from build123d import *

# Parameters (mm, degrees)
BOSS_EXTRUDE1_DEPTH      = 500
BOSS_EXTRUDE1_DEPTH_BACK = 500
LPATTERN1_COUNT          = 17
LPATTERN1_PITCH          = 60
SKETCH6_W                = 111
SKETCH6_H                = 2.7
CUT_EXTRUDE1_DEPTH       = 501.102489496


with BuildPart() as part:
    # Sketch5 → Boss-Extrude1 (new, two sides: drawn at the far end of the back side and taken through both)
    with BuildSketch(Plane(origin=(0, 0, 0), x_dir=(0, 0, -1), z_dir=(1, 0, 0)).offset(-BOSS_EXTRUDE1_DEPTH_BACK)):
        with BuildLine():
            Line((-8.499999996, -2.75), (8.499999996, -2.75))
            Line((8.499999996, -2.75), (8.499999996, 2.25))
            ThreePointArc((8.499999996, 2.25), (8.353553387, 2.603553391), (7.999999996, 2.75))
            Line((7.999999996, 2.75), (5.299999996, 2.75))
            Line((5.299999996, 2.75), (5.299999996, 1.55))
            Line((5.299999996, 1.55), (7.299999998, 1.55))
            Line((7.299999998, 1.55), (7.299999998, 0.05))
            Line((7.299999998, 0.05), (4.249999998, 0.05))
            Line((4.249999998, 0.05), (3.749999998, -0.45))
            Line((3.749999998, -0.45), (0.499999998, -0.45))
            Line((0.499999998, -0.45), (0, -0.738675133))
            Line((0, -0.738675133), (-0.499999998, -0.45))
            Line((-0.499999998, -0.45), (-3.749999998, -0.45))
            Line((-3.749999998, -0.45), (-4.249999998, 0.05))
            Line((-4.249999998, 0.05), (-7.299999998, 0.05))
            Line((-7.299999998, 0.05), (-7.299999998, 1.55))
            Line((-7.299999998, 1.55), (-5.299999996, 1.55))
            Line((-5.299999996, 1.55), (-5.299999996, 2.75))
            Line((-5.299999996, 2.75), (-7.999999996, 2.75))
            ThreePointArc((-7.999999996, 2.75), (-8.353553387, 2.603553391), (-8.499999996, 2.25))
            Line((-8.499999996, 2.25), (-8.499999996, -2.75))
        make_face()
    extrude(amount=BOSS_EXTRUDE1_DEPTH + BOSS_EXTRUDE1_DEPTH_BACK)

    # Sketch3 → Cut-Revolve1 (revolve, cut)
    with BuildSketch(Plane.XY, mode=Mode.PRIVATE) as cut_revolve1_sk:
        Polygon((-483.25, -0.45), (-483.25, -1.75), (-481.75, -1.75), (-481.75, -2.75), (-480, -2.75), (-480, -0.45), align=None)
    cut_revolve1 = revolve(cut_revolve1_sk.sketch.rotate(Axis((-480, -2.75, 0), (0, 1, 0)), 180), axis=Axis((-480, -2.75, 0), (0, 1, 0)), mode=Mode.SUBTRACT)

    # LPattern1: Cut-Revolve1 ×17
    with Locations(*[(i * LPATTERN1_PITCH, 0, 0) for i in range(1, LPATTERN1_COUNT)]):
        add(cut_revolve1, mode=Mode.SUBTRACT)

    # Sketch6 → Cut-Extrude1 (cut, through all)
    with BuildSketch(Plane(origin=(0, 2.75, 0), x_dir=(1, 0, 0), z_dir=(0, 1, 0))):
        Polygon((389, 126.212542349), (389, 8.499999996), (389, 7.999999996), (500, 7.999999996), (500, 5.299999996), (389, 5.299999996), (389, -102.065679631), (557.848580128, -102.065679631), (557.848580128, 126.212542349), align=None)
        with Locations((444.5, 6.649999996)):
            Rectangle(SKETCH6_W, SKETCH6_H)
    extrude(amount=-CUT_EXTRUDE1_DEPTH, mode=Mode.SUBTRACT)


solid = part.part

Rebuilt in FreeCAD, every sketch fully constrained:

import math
import FreeCAD as App
import Part
import Sketcher
Q = App.Units.Quantity


def add_polygon(sketch, points):
    """Adds a closed chain of lines whose ends are joined by coincident constraints."""
    first, n = sketch.GeometryCount, len(points)
    for a, b in zip(points, points[1:] + points[:1]):
        sketch.addGeometry(Part.LineSegment(App.Vector(*a, 0), App.Vector(*b, 0)), False)
    for i in range(n):
        sketch.addConstraint(Sketcher.Constraint("Coincident", first + i, 2, first + (i + 1) % n, 1))

doc = App.newDocument("Part")
body = doc.addObject("PartDesign::Body", "Body")

# Sketch on YZ plane
sketch1 = body.newObject("Sketcher::SketchObject", "Sketch")
sketch1.AttachmentSupport = (doc.getObject("YZ_Plane"), [""])
sketch1.MapMode = "FlatFace"
sketch1.addGeometry([
    Part.LineSegment(App.Vector(-2.75, 8.5, 0), App.Vector(-2.75, -8.5, 0)),  # 0
    Part.LineSegment(App.Vector(-2.75, -8.5, 0), App.Vector(2.25, -8.5, 0)),  # 1
    Part.ArcOfCircle(Part.Circle(App.Vector(2.25, -8, 0), App.Vector(0, 0, 1), 0.5), math.radians(-90), math.radians(0)),  # 2
    Part.LineSegment(App.Vector(2.75, -8, 0), App.Vector(2.75, -5.3, 0)),  # 3
    Part.LineSegment(App.Vector(2.75, -5.3, 0), App.Vector(1.55, -5.3, 0)),  # 4
    Part.LineSegment(App.Vector(1.55, -5.3, 0), App.Vector(1.55, -7.3, 0)),  # 5
    Part.LineSegment(App.Vector(1.55, -7.3, 0), App.Vector(0.05, -7.3, 0)),  # 6
    Part.LineSegment(App.Vector(0.05, -7.3, 0), App.Vector(0.05, -4.25, 0)),  # 7
    Part.LineSegment(App.Vector(0.05, -4.25, 0), App.Vector(-0.45, -3.75, 0)),  # 8
    Part.LineSegment(App.Vector(-0.45, -3.75, 0), App.Vector(-0.45, -0.5, 0)),  # 9
    Part.LineSegment(App.Vector(-0.45, -0.5, 0), App.Vector(-0.74, 0, 0)),  # 10
    Part.LineSegment(App.Vector(-0.74, 0, 0), App.Vector(-0.45, 0.5, 0)),  # 11
    Part.LineSegment(App.Vector(-0.45, 0.5, 0), App.Vector(-0.45, 3.75, 0)),  # 12
    Part.LineSegment(App.Vector(-0.45, 3.75, 0), App.Vector(0.05, 4.25, 0)),  # 13
    Part.LineSegment(App.Vector(0.05, 4.25, 0), App.Vector(0.05, 7.3, 0)),  # 14
    Part.LineSegment(App.Vector(0.05, 7.3, 0), App.Vector(1.55, 7.3, 0)),  # 15
    Part.LineSegment(App.Vector(1.55, 7.3, 0), App.Vector(1.55, 5.3, 0)),  # 16
    Part.LineSegment(App.Vector(1.55, 5.3, 0), App.Vector(2.75, 5.3, 0)),  # 17
    Part.LineSegment(App.Vector(2.75, 5.3, 0), App.Vector(2.75, 8, 0)),  # 18
    Part.ArcOfCircle(Part.Circle(App.Vector(2.25, 8, 0), App.Vector(0, 0, 1), 0.5), math.radians(0), math.radians(90)),  # 19
    Part.LineSegment(App.Vector(2.25, 8.5, 0), App.Vector(-2.75, 8.5, 0)),  # 20
], False)
sketch1.addConstraint([
    Sketcher.Constraint("Coincident", 0, 2, 1, 1),
    Sketcher.Constraint("Tangent", 1, 2, 2, 1),
    Sketcher.Constraint("Tangent", 2, 2, 3, 1),
    Sketcher.Constraint("Coincident", 3, 2, 4, 1),
    Sketcher.Constraint("Coincident", 4, 2, 5, 1),
    Sketcher.Constraint("Coincident", 5, 2, 6, 1),
    Sketcher.Constraint("Coincident", 6, 2, 7, 1),
    Sketcher.Constraint("Coincident", 7, 2, 8, 1),
    Sketcher.Constraint("Coincident", 8, 2, 9, 1),
    Sketcher.Constraint("Coincident", 9, 2, 10, 1),
    Sketcher.Constraint("Coincident", 10, 2, 11, 1),
    Sketcher.Constraint("Coincident", 11, 2, 12, 1),
    Sketcher.Constraint("Coincident", 12, 2, 13, 1),
    Sketcher.Constraint("Coincident", 13, 2, 14, 1),
    Sketcher.Constraint("Coincident", 14, 2, 15, 1),
    Sketcher.Constraint("Coincident", 15, 2, 16, 1),
    Sketcher.Constraint("Coincident", 16, 2, 17, 1),
    Sketcher.Constraint("Coincident", 17, 2, 18, 1),
    Sketcher.Constraint("Tangent", 18, 2, 19, 1),
    Sketcher.Constraint("Tangent", 19, 2, 20, 1),
    Sketcher.Constraint("Coincident", 20, 2, 0, 1),
    Sketcher.Constraint("Vertical", 0),
    Sketcher.Constraint("Horizontal", 1),
    Sketcher.Constraint("Vertical", 3),
    Sketcher.Constraint("Horizontal", 4),
    Sketcher.Constraint("Vertical", 5),
    Sketcher.Constraint("Horizontal", 6),
    Sketcher.Constraint("Vertical", 7),
    Sketcher.Constraint("Vertical", 9),
    Sketcher.Constraint("Vertical", 12),
    Sketcher.Constraint("Vertical", 14),
    Sketcher.Constraint("Horizontal", 15),
    Sketcher.Constraint("Vertical", 16),
    Sketcher.Constraint("Horizontal", 17),
    Sketcher.Constraint("Vertical", 18),
    Sketcher.Constraint("Horizontal", 20),
    Sketcher.Constraint("Equal", 2, 19),
    Sketcher.Constraint("Symmetric", 2, 3, 19, 3, -1),
    Sketcher.Constraint("Symmetric", 9, 2, 11, 2, -1),
    Sketcher.Constraint("Symmetric", 7, 2, 13, 2, -1),
    Sketcher.Constraint("Symmetric", 5, 2, 15, 2, -1),
    Sketcher.Constraint("PointOnObject", 10, 2, -1),
    Sketcher.Constraint("Perpendicular", 8, 13),
    Sketcher.Constraint("Equal", 9, 12),
    Sketcher.Constraint("Equal", 5, 16),
    Sketcher.Constraint("Radius", 2, Q("0.5 mm")),
    Sketcher.Constraint("DistanceX", 1, 1, 1, 2, Q("5 mm")),
    Sketcher.Constraint("DistanceY", 0, 2, 0, 1, Q("17 mm")),
    Sketcher.Constraint("DistanceY", 5, 2, 5, 1, Q("2 mm")),
    Sketcher.Constraint("Angle", 10, Q("120 deg")),
    Sketcher.Constraint("DistanceX", 4, 2, 4, 1, Q("1.2 mm")),
    Sketcher.Constraint("DistanceX", 6, 2, 6, 1, Q("1.5 mm")),
    Sketcher.Constraint("DistanceY", 3, 1, 3, 2, Q("2.7 mm")),
    Sketcher.Constraint("DistanceX", 8, 2, 4, 2, Q("2 mm")),
    Sketcher.Constraint("DistanceY", 9, 2, 11, 2, Q("1 mm")),
    Sketcher.Constraint("DistanceY", 7, 1, 7, 2, Q("3.05 mm")),
    Sketcher.Constraint("DistanceX", -1, 1, 2, 3, Q("2.25 mm")),
])
pad1 = body.newObject("PartDesign::Pad", "Pad")
pad1.Profile = sketch1
pad1.Type = "TwoLengths"
pad1.Length = 500
pad1.Length2 = 500

# Sketch on XY plane
sketch2 = body.newObject("Sketcher::SketchObject", "Sketch001")
sketch2.AttachmentSupport = (doc.getObject("XY_Plane"), [""])
sketch2.MapMode = "FlatFace"
add_polygon(sketch2, [(-483.2, -0.5), (-483.2, -1.8), (-481.8, -1.8), (-481.8, -2.8), (-480, -2.8), (-480, -0.5)])  # lines 0-5
sketch2.addGeometry(Part.LineSegment(App.Vector(-480, -2.8, 0), App.Vector(-480, -0.5, 0)), True)  # axis
sketch2.addConstraint([
    Sketcher.Constraint("Vertical", 0),
    Sketcher.Constraint("Horizontal", 1),
    Sketcher.Constraint("Vertical", 2),
    Sketcher.Constraint("Horizontal", 3),
    Sketcher.Constraint("Vertical", 4),
    Sketcher.Constraint("Horizontal", 5),
    Sketcher.Constraint("Vertical", 6),
    Sketcher.Constraint("Coincident", 6, 1, 3, 2),
    Sketcher.Constraint("Horizontal", 5, 2, 6, 2),
    Sketcher.Constraint("DistanceY", 2, 2, 2, 1, Q("1 mm")),
    Sketcher.Constraint("DistanceX", 1, 1, 1, 2, Q("1.5 mm")),
    Sketcher.Constraint("DistanceY", 0, 2, 0, 1, Q("1.3 mm")),
    Sketcher.Constraint("DistanceX", 3, 2, -1, 1, Q("480 mm")),
    Sketcher.Constraint("DistanceX", 3, 1, 3, 2, Q("1.75 mm")),
    Sketcher.Constraint("DistanceY", 0, 2, -1, 1, Q("1.75 mm")),
])
groove = body.newObject("PartDesign::Groove", "Groove")
groove.Profile = sketch2
groove.ReferenceAxis = (sketch2, ["Axis0"])
groove.Angle = 360
doc.recompute()

linearpattern = body.newObject("PartDesign::LinearPattern", "LinearPattern")
linearpattern.Originals = [groove]
linearpattern.Direction = (doc.getObject("X_Axis"), [""])
linearpattern.Mode = "offset"
linearpattern.Offset = 60
linearpattern.Occurrences = 17
body.Tip = linearpattern

# Sketch on XZ plane
sketch3 = body.newObject("Sketcher::SketchObject", "Sketch002")
sketch3.AttachmentSupport = (doc.getObject("XZ_Plane"), [""])
sketch3.MapMode = "FlatFace"
sketch3.AttachmentOffset = App.Placement(App.Vector(0, 0, -2.75), App.Rotation())
add_polygon(sketch3, [(389, -126), (389, 102), (558, 102), (558, -126)])  # lines 0-3
sketch3.addConstraint([
    Sketcher.Constraint("Vertical", 0),
    Sketcher.Constraint("Horizontal", 1),
    Sketcher.Constraint("Vertical", 2),
    Sketcher.Constraint("Horizontal", 3),
    Sketcher.Constraint("DistanceX", -1, 1, 0, 2, Q("389 mm")),
    Sketcher.Constraint("DistanceX", 1, 1, 1, 2, Q("168.84858 mm")),
    Sketcher.Constraint("DistanceY", 0, 1, 0, 2, Q("228.278222 mm")),
    Sketcher.Constraint("DistanceY", -1, 1, 0, 2, Q("102.06568 mm")),
])
pocket1 = body.newObject("PartDesign::Pocket", "Pocket")
pocket1.Profile = sketch3
pocket1.Type = "ThroughAll"
pocket1.Reversed = True

doc.recompute()
